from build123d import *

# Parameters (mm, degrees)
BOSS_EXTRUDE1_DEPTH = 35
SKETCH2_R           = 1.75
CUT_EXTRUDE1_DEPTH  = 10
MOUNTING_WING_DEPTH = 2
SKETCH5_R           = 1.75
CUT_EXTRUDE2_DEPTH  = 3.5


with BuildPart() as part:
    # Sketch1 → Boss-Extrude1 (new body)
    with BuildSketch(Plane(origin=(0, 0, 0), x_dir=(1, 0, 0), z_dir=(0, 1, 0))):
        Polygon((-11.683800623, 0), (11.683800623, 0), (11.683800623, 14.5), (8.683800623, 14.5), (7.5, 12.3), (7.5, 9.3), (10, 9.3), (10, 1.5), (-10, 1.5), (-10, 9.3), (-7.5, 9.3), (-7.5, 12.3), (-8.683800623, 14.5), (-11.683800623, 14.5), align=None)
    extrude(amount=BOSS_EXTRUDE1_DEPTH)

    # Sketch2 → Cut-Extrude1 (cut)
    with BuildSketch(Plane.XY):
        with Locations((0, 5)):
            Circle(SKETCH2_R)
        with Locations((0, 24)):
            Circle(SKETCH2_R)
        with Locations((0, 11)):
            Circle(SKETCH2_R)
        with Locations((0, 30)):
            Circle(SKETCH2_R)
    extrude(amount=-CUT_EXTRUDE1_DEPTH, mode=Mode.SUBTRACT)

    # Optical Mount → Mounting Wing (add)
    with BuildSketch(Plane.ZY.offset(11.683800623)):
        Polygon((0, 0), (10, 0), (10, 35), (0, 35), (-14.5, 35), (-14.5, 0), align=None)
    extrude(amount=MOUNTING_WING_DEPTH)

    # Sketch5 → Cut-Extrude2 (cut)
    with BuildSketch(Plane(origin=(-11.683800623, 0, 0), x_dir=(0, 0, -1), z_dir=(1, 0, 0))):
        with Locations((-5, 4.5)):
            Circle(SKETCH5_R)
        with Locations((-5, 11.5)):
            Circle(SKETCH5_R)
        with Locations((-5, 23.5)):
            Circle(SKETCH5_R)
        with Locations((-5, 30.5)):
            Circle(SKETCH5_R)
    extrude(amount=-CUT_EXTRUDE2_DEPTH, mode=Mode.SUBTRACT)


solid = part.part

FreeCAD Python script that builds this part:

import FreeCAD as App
import Part
import Sketcher

V = App.Vector
Q = App.Units.Quantity


def add_polygon(sketch, points):
    """Adds a closed chain of lines whose ends are joined by coincident constraints."""
    first, n = sketch.GeometryCount, len(points)
    for a, b in zip(points, points[1:] + points[:1]):
        sketch.addGeometry(Part.LineSegment(App.Vector(*a, 0), App.Vector(*b, 0)), False)
    for i in range(n):
        sketch.addConstraint(Sketcher.Constraint("Coincident", first + i, 2, first + (i + 1) % n, 1))

doc = App.newDocument("Part")
body = doc.addObject("PartDesign::Body", "Body")

sketch1 = doc.addObject("Sketcher::SketchObject", "Sketch")
body.addObject(sketch1)
sketch1.AttachmentSupport = (doc.XZ_Plane, [""])
sketch1.MapMode = "FlatFace"
add_polygon(sketch1, [(-11.683801, 0), (11.683801, 0), (11.683801, -14.5), (8.683801, -14.5), (7.5, -12.3), (7.5, -9.3), (10, -9.3), (10, -1.5), (-10, -1.5), (-10, -9.3), (-7.5, -9.3), (-7.5, -12.3), (-8.683801, -14.5), (-11.683801, -14.5)])
sketch1.addConstraint([
    Sketcher.Constraint("Horizontal", 0),
    Sketcher.Constraint("Vertical", 1),
    Sketcher.Constraint("Horizontal", 2),
    Sketcher.Constraint("Vertical", 4),
    Sketcher.Constraint("Horizontal", 5),
    Sketcher.Constraint("Vertical", 6),
    Sketcher.Constraint("Horizontal", 7),
    Sketcher.Constraint("Vertical", 8),
    Sketcher.Constraint("Horizontal", 9),
    Sketcher.Constraint("Vertical", 10),
    Sketcher.Constraint("Horizontal", 12),
    Sketcher.Constraint("Vertical", 13),
    Sketcher.Constraint("Symmetric", 0, 2, 13, 2, -1, 1),
    Sketcher.Constraint("Symmetric", 5, 2, 8, 2, -2),
    Sketcher.Constraint("Symmetric", 3, 2, 10, 2, -2),
    Sketcher.Constraint("Symmetric", 2, 2, 11, 2, -2),
    Sketcher.Constraint("Equal", 12, 4),
    Sketcher.Constraint("DistanceX", 2, 2, 2, 1, Q("3 mm")),
    Sketcher.Constraint("DistanceX", 7, 2, 7, 1, Q("20 mm")),
    Sketcher.Constraint("DistanceX", 5, 1, 5, 2, Q("2.5 mm")),
    Sketcher.Constraint("DistanceY", 1, 2, 1, 1, Q("14.5 mm")),
    Sketcher.Constraint("DistanceY", 6, 1, 6, 2, Q("7.8 mm")),
    Sketcher.Constraint("DistanceY", 2, 2, 6, 2, Q("13 mm")),
    Sketcher.Constraint("DistanceX", 0, 1, 0, 2, Q("23.367601 mm")),
])
pad1 = doc.addObject("PartDesign::Pad", "Pad")
body.addObject(pad1)
pad1.Profile = sketch1
pad1.Length = 35
pad1.Reversed = True

sketch2 = doc.addObject("Sketcher::SketchObject", "Sketch001")
body.addObject(sketch2)
sketch2.AttachmentSupport = (doc.XY_Plane, [""])
sketch2.MapMode = "FlatFace"
sketch2.addGeometry([
    Part.Circle(V(0, 5, 0), V(0, 0, 1), 1.75),
    Part.Circle(V(0, 24, 0), V(0, 0, 1), 1.75),
    Part.Circle(V(0, 11, 0), V(0, 0, 1), 1.75),
    Part.Circle(V(0, 30, 0), V(0, 0, 1), 1.75),
], False)
sketch2.addConstraint([
    Sketcher.Constraint("Equal", 0, 1),
    Sketcher.Constraint("Equal", 1, 2),
    Sketcher.Constraint("Equal", 2, 3),
    Sketcher.Constraint("PointOnObject", 0, 3, -2),
    Sketcher.Constraint("PointOnObject", 1, 3, -2),
    Sketcher.Constraint("PointOnObject", 2, 3, -2),
    Sketcher.Constraint("PointOnObject", 3, 3, -2),
    Sketcher.Constraint("Diameter", 0, Q("3.5 mm")),
    Sketcher.Constraint("DistanceY", -1, 1, 0, 3, Q("5 mm")),
    Sketcher.Constraint("DistanceY", -1, 1, 1, 3, Q("24 mm")),
    Sketcher.Constraint("DistanceY", -1, 1, 2, 3, Q("11 mm")),
    Sketcher.Constraint("DistanceY", -1, 1, 3, 3, Q("30 mm")),
])
pocket1 = doc.addObject("PartDesign::Pocket", "Pocket")
body.addObject(pocket1)
pocket1.Profile = sketch2
pocket1.Length = 10

sketch3 = doc.addObject("Sketcher::SketchObject", "Sketch002")
body.addObject(sketch3)
sketch3.AttachmentSupport = (doc.YZ_Plane, [""])
sketch3.MapMode = "FlatFace"
sketch3.AttachmentOffset = App.Placement(V(0, 0, -11.683801), App.Rotation())
add_polygon(sketch3, [(0, 10), (35, 10), (35, -14.5), (0, -14.5)])
sketch3.addConstraint([
    Sketcher.Constraint("Horizontal", 0),
    Sketcher.Constraint("Vertical", 1),
    Sketcher.Constraint("Horizontal", 2),
    Sketcher.Constraint("Vertical", 3),
    Sketcher.Constraint("PointOnObject", 2, 2, -2),
    Sketcher.Constraint("DistanceX", 0, 1, 0, 2, Q("35 mm")),
    Sketcher.Constraint("DistanceY", 1, 2, 1, 1, Q("24.5 mm")),
    Sketcher.Constraint("DistanceY", -1, 1, 0, 2, Q("10 mm")),
])
pad2 = doc.addObject("PartDesign::Pad", "Pad001")
body.addObject(pad2)
pad2.Profile = sketch3
pad2.Length = 2
pad2.Reversed = True

sketch4 = doc.addObject("Sketcher::SketchObject", "Sketch003")
body.addObject(sketch4)
sketch4.AttachmentSupport = (doc.YZ_Plane, [""])
sketch4.MapMode = "FlatFace"
sketch4.AttachmentOffset = App.Placement(V(0, 0, -11.683801), App.Rotation())
sketch4.addGeometry([
    Part.Circle(V(4.5, 5, 0), V(0, 0, 1), 1.75),
    Part.Circle(V(11.5, 5, 0), V(0, 0, 1), 1.75),
    Part.Circle(V(23.5, 5, 0), V(0, 0, 1), 1.75),
    Part.Circle(V(30.5, 5, 0), V(0, 0, 1), 1.75),
], False)
sketch4.addConstraint([
    Sketcher.Constraint("Equal", 0, 1),
    Sketcher.Constraint("Equal", 1, 2),
    Sketcher.Constraint("Equal", 2, 3),
    Sketcher.Constraint("Horizontal", 0, 3, 1, 3),
    Sketcher.Constraint("Horizontal", 1, 3, 2, 3),
    Sketcher.Constraint("Horizontal", 2, 3, 3, 3),
    Sketcher.Constraint("Diameter", 0, Q("3.5 mm")),
    Sketcher.Constraint("DistanceY", -1, 1, 0, 3, Q("5 mm")),
    Sketcher.Constraint("DistanceX", 0, 3, 1, 3, Q("7 mm")),
    Sketcher.Constraint("DistanceX", 1, 3, 2, 3, Q("12 mm")),
    Sketcher.Constraint("DistanceX", 2, 3, 3, 3, Q("7 mm")),
    Sketcher.Constraint("DistanceX", -1, 1, 0, 3, Q("4.5 mm")),
])
pocket2 = doc.addObject("PartDesign::Pocket", "Pocket001")
body.addObject(pocket2)
pocket2.Profile = sketch4
pocket2.Length = 3.5

doc.recompute()
